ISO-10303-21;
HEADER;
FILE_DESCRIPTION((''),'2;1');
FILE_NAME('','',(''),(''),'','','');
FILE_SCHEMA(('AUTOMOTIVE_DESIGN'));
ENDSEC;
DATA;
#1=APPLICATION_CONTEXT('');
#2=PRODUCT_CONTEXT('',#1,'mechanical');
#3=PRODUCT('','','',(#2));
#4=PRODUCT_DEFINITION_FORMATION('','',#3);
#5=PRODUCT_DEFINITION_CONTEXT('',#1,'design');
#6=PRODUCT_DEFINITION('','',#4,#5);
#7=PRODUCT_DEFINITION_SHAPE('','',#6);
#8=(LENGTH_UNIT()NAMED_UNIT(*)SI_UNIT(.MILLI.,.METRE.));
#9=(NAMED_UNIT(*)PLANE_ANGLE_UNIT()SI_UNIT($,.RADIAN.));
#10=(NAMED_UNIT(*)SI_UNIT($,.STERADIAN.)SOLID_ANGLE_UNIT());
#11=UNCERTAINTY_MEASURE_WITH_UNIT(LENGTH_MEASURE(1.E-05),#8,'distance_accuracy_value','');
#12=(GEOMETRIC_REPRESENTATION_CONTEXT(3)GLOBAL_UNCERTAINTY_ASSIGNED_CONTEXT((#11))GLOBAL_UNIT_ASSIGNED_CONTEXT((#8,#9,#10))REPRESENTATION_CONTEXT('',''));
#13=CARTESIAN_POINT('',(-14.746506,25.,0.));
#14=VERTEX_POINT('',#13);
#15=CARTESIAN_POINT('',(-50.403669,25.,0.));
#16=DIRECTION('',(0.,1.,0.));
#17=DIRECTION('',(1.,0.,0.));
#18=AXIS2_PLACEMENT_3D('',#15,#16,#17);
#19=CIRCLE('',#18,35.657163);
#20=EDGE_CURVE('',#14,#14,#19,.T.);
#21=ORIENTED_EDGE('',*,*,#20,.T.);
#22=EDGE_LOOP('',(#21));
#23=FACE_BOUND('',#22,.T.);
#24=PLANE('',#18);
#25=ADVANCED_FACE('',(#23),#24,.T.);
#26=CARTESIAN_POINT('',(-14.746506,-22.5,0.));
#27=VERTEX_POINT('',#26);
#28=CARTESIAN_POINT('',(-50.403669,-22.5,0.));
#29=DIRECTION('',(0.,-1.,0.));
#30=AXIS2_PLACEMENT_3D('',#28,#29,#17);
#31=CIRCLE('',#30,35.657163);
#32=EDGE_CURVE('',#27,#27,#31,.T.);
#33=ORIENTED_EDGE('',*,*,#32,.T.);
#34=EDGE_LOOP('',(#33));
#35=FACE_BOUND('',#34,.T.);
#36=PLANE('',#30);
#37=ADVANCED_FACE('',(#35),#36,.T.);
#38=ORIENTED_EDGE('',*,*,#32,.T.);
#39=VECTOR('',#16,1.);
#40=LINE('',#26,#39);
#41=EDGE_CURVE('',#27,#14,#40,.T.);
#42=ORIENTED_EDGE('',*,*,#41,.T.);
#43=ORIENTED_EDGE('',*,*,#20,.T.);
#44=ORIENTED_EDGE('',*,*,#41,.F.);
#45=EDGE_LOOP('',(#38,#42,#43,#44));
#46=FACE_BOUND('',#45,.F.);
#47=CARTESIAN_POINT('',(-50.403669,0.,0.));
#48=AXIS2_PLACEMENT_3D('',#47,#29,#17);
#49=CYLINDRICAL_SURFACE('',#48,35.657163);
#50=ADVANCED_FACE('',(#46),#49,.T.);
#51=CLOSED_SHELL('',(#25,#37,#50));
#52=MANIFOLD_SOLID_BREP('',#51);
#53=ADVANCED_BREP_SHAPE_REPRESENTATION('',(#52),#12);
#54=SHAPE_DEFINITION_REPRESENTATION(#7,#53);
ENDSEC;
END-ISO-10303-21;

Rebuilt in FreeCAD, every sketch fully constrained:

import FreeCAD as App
import Part
import Sketcher
from FreeCAD import Vector
Q = App.Units.Quantity

doc = App.newDocument("Part")
body = doc.addObject("PartDesign::Body", "Body")

sketch1 = body.newObject("Sketcher::SketchObject", "Sketch")
sketch1.AttachmentSupport = (doc.getObject("XZ_Plane"), [""])
sketch1.MapMode = "FlatFace"
sketch1.addGeometry(Part.Circle(Vector(-50, 0, 0), Vector(0, 0, 1), 36), False)
sketch1.addConstraint(Sketcher.Constraint("PointOnObject", 0, 3, -1))
sketch1.addConstraint(Sketcher.Constraint("Diameter", 0, Q("71.314326 mm")))
sketch1.addConstraint(Sketcher.Constraint("DistanceX", 0, 3, -1, 1, Q("50.403669 mm")))
pad1 = body.newObject("PartDesign::Pad", "Pad")
pad1.Profile = sketch1
pad1.Length = 22.5

sketch2 = body.newObject("Sketcher::SketchObject", "Sketch001")
sketch2.AttachmentSupport = (doc.getObject("XZ_Plane"), [""])
sketch2.MapMode = "FlatFace"
sketch2.addGeometry(Part.Circle(Vector(-50, 0, 0), Vector(0, 0, 1), 36), False)
sketch2.addConstraint(Sketcher.Constraint("PointOnObject", 0, 3, -1))
sketch2.addConstraint(Sketcher.Constraint("Diameter", 0, Q("71.314326 mm")))
sketch2.addConstraint(Sketcher.Constraint("DistanceX", 0, 3, -1, 1, Q("50.403669 mm")))
pad2 = body.newObject("PartDesign::Pad", "Pad001")
pad2.Profile = sketch2
pad2.Length = 25
pad2.Reversed = True

doc.recompute()
